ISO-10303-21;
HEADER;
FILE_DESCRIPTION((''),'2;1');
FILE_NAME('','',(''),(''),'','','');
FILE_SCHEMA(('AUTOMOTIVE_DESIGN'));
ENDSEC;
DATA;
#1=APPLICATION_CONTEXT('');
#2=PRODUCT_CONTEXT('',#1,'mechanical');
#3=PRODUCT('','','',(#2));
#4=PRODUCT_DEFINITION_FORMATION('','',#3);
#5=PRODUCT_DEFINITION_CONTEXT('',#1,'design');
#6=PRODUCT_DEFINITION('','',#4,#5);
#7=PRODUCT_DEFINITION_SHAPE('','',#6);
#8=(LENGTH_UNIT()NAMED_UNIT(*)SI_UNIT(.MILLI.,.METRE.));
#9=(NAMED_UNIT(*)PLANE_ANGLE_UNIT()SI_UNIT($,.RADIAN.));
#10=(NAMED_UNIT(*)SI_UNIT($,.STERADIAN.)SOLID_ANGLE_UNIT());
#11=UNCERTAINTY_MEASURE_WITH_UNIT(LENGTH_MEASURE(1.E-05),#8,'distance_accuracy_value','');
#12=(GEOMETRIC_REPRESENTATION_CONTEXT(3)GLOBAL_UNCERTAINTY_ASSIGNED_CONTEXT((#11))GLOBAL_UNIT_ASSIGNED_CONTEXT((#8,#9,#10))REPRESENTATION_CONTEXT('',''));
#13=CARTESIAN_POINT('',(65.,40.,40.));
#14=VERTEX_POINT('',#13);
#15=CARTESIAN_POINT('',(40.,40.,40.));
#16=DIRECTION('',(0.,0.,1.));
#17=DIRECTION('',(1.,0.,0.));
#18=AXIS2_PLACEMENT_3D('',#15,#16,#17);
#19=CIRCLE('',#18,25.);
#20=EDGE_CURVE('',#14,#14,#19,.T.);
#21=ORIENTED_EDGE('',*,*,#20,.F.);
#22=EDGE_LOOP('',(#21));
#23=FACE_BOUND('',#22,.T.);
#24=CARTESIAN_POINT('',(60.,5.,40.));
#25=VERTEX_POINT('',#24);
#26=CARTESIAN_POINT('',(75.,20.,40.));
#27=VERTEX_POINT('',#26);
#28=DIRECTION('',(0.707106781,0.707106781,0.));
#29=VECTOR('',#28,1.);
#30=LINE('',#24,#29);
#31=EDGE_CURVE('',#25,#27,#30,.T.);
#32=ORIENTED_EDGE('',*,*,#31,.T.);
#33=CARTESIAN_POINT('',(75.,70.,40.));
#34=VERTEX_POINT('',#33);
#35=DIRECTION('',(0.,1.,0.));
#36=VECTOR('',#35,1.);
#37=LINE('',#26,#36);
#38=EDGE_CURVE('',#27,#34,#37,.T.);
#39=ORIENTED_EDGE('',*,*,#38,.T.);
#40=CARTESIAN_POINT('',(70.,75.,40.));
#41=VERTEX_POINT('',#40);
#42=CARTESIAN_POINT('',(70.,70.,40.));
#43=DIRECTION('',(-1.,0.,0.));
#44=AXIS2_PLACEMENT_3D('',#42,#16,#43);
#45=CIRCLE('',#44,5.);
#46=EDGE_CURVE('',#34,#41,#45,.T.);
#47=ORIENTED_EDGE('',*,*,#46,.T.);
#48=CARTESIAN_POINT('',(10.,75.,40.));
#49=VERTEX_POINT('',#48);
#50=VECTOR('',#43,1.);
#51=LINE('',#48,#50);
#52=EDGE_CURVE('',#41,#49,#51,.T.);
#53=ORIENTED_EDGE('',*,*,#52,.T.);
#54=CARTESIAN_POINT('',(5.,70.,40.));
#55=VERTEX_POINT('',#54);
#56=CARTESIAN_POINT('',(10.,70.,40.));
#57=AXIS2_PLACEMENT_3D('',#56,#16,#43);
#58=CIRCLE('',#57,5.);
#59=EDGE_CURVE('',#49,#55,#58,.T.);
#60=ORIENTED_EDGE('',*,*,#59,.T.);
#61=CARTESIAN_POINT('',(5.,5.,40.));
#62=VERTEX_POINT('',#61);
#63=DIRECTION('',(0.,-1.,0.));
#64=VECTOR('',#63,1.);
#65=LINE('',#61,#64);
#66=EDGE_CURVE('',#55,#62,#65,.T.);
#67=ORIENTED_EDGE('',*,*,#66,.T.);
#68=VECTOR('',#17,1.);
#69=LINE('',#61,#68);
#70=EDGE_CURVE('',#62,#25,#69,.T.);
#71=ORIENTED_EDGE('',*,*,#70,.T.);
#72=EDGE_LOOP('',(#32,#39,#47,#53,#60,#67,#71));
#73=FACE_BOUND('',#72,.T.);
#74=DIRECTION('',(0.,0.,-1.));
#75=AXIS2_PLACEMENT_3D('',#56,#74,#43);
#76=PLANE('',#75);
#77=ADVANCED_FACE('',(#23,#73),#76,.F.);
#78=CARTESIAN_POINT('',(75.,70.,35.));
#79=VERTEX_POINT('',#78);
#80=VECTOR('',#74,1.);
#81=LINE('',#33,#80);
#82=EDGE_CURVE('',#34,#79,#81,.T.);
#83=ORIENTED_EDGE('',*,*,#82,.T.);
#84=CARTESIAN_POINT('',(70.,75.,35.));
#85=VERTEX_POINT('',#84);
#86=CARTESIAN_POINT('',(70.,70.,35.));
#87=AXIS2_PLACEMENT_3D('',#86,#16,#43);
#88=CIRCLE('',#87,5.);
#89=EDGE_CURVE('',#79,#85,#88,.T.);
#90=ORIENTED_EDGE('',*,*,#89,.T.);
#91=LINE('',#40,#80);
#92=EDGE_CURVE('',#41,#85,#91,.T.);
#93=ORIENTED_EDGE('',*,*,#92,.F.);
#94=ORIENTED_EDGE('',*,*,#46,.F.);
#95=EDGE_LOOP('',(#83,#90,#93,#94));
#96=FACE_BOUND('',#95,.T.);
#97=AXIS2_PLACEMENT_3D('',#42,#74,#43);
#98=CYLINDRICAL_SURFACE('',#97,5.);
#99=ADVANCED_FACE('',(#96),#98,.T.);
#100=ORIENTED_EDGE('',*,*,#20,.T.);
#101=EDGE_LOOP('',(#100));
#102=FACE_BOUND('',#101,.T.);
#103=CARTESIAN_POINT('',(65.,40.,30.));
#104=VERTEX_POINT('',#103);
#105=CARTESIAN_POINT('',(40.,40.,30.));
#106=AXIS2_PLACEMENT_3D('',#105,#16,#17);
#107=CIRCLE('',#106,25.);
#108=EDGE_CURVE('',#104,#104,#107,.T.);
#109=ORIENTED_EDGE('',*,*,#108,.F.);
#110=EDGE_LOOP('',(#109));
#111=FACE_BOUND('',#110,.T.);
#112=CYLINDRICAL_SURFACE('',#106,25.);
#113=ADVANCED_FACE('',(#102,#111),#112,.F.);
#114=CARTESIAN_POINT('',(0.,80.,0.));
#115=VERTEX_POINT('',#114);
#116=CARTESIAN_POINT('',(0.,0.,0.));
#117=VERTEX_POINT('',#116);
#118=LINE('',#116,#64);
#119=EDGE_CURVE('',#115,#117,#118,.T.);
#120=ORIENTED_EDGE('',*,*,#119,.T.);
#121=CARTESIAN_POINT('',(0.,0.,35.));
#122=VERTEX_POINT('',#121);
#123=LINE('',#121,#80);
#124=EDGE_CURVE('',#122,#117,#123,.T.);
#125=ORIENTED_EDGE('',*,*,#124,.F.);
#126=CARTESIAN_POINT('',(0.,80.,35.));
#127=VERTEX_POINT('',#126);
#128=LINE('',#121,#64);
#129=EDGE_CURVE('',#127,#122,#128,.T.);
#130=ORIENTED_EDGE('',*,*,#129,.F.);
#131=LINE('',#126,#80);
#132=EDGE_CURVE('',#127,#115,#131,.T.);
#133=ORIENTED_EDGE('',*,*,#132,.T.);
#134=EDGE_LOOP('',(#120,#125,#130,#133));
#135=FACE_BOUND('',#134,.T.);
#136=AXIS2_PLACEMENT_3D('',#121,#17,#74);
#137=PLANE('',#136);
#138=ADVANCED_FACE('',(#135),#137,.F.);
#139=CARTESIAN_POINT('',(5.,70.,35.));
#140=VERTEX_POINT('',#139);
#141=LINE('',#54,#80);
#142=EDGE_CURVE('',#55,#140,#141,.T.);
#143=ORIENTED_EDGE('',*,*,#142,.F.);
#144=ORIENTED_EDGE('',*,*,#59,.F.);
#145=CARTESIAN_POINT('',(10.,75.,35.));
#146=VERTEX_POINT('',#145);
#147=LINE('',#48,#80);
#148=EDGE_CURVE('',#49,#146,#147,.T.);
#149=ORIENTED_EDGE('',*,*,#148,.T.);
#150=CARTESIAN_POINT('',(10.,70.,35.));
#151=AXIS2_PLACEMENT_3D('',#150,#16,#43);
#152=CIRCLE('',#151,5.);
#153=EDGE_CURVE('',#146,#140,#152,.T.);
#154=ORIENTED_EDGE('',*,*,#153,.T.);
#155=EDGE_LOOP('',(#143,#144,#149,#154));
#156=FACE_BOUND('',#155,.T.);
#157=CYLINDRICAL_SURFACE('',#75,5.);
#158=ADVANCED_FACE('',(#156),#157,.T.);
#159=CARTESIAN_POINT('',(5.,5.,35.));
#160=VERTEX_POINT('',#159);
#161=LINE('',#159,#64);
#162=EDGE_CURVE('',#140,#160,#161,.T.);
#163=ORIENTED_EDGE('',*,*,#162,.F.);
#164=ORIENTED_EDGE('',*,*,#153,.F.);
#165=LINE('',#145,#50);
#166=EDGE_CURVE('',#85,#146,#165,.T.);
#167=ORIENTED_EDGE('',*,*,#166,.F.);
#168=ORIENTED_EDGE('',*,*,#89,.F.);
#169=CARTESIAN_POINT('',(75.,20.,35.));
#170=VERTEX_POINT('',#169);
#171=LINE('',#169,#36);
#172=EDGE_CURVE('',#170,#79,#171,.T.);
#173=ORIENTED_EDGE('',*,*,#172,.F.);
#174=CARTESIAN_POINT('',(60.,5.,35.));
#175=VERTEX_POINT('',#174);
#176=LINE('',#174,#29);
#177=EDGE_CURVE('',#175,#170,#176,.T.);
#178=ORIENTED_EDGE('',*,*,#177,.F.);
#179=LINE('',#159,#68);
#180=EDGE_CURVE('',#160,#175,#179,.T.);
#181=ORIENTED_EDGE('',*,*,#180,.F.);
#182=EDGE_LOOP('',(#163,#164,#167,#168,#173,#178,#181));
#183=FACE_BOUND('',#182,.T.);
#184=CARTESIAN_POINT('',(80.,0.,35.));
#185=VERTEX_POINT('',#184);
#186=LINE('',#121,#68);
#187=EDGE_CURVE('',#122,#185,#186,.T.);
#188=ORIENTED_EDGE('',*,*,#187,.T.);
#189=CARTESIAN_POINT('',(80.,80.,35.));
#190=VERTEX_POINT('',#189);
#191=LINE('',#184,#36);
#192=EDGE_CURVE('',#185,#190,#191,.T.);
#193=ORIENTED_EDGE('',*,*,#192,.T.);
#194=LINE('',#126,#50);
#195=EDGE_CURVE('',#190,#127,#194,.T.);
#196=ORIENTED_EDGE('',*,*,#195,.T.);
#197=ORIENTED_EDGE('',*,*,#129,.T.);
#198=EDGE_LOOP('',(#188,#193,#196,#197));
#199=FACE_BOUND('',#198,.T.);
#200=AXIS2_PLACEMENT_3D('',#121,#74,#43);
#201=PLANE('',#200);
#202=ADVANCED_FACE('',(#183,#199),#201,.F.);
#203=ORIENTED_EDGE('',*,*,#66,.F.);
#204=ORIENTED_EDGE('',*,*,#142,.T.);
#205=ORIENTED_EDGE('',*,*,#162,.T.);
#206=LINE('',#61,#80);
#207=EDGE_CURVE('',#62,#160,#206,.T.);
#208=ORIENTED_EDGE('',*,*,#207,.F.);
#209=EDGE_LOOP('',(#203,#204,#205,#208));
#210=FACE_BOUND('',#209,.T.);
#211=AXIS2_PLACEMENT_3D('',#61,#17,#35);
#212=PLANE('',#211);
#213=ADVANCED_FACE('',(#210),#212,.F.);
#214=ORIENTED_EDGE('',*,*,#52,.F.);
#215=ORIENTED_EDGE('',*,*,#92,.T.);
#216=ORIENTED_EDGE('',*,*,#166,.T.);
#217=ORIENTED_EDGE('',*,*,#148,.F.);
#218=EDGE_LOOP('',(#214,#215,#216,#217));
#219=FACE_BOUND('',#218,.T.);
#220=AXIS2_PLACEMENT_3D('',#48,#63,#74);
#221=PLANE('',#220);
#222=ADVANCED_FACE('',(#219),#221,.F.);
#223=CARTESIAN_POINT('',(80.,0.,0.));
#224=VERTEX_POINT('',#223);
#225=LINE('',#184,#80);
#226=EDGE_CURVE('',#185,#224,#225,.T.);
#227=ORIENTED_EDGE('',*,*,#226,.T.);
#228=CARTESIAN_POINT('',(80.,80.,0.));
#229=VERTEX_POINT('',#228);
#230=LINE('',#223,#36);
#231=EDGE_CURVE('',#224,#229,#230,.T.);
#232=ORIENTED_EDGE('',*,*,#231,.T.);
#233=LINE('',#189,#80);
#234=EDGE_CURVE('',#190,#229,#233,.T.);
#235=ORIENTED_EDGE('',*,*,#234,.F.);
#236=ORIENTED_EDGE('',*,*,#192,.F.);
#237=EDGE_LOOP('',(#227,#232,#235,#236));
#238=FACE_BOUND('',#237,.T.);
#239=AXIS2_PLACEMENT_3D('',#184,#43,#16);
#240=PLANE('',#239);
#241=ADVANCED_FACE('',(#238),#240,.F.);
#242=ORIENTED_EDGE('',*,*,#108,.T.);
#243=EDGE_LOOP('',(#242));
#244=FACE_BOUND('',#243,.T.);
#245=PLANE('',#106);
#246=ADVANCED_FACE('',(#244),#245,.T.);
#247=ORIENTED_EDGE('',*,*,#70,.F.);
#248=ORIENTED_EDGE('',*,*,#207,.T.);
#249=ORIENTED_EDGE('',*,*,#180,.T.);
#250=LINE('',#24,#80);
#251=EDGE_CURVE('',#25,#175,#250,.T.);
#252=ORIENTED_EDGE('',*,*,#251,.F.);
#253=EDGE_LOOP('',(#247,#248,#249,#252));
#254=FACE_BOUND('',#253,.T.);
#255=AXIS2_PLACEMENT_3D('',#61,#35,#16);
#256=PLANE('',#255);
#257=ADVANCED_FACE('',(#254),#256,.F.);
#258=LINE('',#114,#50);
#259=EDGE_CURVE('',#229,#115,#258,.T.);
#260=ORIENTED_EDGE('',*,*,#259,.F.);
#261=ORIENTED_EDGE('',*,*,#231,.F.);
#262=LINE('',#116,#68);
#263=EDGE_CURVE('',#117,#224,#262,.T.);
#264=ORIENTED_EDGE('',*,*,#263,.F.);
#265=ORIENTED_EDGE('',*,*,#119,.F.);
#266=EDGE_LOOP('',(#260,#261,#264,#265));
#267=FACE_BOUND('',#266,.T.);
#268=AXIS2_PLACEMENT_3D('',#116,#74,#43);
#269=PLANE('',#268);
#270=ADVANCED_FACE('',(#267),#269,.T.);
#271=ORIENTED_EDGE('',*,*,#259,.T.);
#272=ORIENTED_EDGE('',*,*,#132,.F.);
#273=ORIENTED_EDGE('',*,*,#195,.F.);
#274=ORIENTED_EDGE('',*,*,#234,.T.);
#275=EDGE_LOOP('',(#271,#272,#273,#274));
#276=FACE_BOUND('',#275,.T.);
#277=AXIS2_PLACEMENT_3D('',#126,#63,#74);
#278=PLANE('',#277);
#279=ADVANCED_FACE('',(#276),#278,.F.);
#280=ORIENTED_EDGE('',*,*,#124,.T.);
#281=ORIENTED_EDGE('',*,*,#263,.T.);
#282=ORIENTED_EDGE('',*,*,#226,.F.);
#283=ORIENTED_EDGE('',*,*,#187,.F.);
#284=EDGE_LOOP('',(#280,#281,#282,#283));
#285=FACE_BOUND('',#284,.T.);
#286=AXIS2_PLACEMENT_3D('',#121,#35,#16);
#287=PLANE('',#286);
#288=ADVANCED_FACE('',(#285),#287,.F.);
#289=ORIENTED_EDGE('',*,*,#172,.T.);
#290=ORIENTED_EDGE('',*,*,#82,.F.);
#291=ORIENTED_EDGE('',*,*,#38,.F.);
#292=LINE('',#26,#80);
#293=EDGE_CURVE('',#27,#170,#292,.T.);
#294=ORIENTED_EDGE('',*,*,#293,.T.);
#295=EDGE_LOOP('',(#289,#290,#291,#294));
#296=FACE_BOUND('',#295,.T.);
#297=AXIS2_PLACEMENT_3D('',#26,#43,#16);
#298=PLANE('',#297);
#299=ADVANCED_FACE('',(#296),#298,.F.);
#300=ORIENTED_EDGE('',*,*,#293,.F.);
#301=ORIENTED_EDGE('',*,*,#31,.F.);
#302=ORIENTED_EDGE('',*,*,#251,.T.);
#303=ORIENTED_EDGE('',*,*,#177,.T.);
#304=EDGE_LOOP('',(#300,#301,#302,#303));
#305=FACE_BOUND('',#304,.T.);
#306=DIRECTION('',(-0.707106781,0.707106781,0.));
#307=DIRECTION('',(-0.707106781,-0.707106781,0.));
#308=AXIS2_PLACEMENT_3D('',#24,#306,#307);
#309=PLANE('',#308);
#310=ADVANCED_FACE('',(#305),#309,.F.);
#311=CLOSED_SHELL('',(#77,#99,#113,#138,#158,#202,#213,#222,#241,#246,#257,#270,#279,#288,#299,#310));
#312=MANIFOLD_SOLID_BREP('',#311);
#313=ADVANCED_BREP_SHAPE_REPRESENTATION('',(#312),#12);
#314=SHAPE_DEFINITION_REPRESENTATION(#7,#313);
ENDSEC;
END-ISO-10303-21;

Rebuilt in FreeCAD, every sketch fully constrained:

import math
import FreeCAD as App
import Part
import Sketcher
from FreeCAD import Vector
Q = App.Units.Quantity

doc = App.newDocument("Part")
body = doc.addObject("PartDesign::Body", "Body")

# Sketch on XY plane
sketch1 = body.newObject("Sketcher::SketchObject", "Sketch")
sketch1.AttachmentSupport = (doc.getObject("XY_Plane"), [""])
sketch1.MapMode = "FlatFace"
sketch1.addGeometry([
    Part.LineSegment(Vector(0, 80, 0), Vector(0, 0, 0)),
    Part.LineSegment(Vector(0, 0, 0), Vector(80, 0, 0)),
    Part.LineSegment(Vector(80, 0, 0), Vector(80, 80, 0)),
    Part.LineSegment(Vector(80, 80, 0), Vector(0, 80, 0)),
], False)
sketch1.addConstraint([
    Sketcher.Constraint("Coincident", 0, 2, 1, 1),
    Sketcher.Constraint("Coincident", 1, 2, 2, 1),
    Sketcher.Constraint("Coincident", 2, 2, 3, 1),
    Sketcher.Constraint("Coincident", 3, 2, 0, 1),
    Sketcher.Constraint("Vertical", 0),
    Sketcher.Constraint("Horizontal", 1),
    Sketcher.Constraint("Vertical", 2),
    Sketcher.Constraint("Horizontal", 3),
    Sketcher.Constraint("Coincident", 0, 2, -1, 1),
    Sketcher.Constraint("Equal", 3, 0),
    Sketcher.Constraint("DistanceX", 1, 1, 1, 2, Q("80 mm")),
])
pad1 = body.newObject("PartDesign::Pad", "Pad")
pad1.Profile = sketch1
pad1.Length = 35

# Sketch on XY plane
sketch2 = body.newObject("Sketcher::SketchObject", "Sketch001")
sketch2.AttachmentSupport = (doc.getObject("XY_Plane"), [""])
sketch2.MapMode = "FlatFace"
sketch2.AttachmentOffset = App.Placement(Vector(0, 0, 35), App.Rotation())
sketch2.addGeometry([
    Part.LineSegment(Vector(60, 5, 0), Vector(75, 20, 0)),  # 0
    Part.LineSegment(Vector(75, 20, 0), Vector(75, 70, 0)),  # 1
    Part.ArcOfCircle(Part.Circle(Vector(70, 70, 0), Vector(0, 0, 1), 5), math.radians(0), math.radians(90)),  # 2
    Part.LineSegment(Vector(70, 75, 0), Vector(10, 75, 0)),  # 3
    Part.ArcOfCircle(Part.Circle(Vector(10, 70, 0), Vector(0, 0, 1), 5), math.radians(90), math.radians(180)),  # 4
    Part.LineSegment(Vector(5, 70, 0), Vector(5, 5, 0)),  # 5
    Part.LineSegment(Vector(5, 5, 0), Vector(60, 5, 0)),  # 6
], False)
sketch2.addConstraint([
    Sketcher.Constraint("Coincident", 0, 2, 1, 1),
    Sketcher.Constraint("Tangent", 1, 2, 2, 1),
    Sketcher.Constraint("Tangent", 2, 2, 3, 1),
    Sketcher.Constraint("Tangent", 3, 2, 4, 1),
    Sketcher.Constraint("Tangent", 4, 2, 5, 1),
    Sketcher.Constraint("Coincident", 5, 2, 6, 1),
    Sketcher.Constraint("Coincident", 6, 2, 0, 1),
    Sketcher.Constraint("Vertical", 1),
    Sketcher.Constraint("Horizontal", 3),
    Sketcher.Constraint("Vertical", 5),
    Sketcher.Constraint("Horizontal", 6),
    Sketcher.Constraint("Equal", 2, 4),
    Sketcher.Constraint("Radius", 2, Q("5 mm")),
    Sketcher.Constraint("DistanceX", 3, 2, 3, 1, Q("60 mm")),
    Sketcher.Constraint("DistanceX", 6, 1, 6, 2, Q("55 mm")),
    Sketcher.Constraint("DistanceY", 1, 1, 1, 2, Q("50 mm")),
    Sketcher.Constraint("DistanceY", 5, 2, 5, 1, Q("65 mm")),
    Sketcher.Constraint("DistanceX", -1, 1, 2, 3, Q("70 mm")),
    Sketcher.Constraint("DistanceY", -1, 1, 2, 3, Q("70 mm")),
])
pad2 = body.newObject("PartDesign::Pad", "Pad001")
pad2.Profile = sketch2
pad2.Length = 5

# Sketch on XY plane
sketch3 = body.newObject("Sketcher::SketchObject", "Sketch002")
sketch3.AttachmentSupport = (doc.getObject("XY_Plane"), [""])
sketch3.MapMode = "FlatFace"
sketch3.AttachmentOffset = App.Placement(Vector(0, 0, 40), App.Rotation())
sketch3.addGeometry(Part.Circle(Vector(40, 40, 0), Vector(0, 0, 1), 25), False)
sketch3.addConstraint([
    Sketcher.Constraint("Diameter", 0, Q("50 mm")),
    Sketcher.Constraint("DistanceX", -1, 1, 0, 3, Q("40 mm")),
    Sketcher.Constraint("DistanceY", -1, 1, 0, 3, Q("40 mm")),
])
pocket1 = body.newObject("PartDesign::Pocket", "Pocket")
pocket1.Profile = sketch3
pocket1.Length = 10

doc.recompute()
